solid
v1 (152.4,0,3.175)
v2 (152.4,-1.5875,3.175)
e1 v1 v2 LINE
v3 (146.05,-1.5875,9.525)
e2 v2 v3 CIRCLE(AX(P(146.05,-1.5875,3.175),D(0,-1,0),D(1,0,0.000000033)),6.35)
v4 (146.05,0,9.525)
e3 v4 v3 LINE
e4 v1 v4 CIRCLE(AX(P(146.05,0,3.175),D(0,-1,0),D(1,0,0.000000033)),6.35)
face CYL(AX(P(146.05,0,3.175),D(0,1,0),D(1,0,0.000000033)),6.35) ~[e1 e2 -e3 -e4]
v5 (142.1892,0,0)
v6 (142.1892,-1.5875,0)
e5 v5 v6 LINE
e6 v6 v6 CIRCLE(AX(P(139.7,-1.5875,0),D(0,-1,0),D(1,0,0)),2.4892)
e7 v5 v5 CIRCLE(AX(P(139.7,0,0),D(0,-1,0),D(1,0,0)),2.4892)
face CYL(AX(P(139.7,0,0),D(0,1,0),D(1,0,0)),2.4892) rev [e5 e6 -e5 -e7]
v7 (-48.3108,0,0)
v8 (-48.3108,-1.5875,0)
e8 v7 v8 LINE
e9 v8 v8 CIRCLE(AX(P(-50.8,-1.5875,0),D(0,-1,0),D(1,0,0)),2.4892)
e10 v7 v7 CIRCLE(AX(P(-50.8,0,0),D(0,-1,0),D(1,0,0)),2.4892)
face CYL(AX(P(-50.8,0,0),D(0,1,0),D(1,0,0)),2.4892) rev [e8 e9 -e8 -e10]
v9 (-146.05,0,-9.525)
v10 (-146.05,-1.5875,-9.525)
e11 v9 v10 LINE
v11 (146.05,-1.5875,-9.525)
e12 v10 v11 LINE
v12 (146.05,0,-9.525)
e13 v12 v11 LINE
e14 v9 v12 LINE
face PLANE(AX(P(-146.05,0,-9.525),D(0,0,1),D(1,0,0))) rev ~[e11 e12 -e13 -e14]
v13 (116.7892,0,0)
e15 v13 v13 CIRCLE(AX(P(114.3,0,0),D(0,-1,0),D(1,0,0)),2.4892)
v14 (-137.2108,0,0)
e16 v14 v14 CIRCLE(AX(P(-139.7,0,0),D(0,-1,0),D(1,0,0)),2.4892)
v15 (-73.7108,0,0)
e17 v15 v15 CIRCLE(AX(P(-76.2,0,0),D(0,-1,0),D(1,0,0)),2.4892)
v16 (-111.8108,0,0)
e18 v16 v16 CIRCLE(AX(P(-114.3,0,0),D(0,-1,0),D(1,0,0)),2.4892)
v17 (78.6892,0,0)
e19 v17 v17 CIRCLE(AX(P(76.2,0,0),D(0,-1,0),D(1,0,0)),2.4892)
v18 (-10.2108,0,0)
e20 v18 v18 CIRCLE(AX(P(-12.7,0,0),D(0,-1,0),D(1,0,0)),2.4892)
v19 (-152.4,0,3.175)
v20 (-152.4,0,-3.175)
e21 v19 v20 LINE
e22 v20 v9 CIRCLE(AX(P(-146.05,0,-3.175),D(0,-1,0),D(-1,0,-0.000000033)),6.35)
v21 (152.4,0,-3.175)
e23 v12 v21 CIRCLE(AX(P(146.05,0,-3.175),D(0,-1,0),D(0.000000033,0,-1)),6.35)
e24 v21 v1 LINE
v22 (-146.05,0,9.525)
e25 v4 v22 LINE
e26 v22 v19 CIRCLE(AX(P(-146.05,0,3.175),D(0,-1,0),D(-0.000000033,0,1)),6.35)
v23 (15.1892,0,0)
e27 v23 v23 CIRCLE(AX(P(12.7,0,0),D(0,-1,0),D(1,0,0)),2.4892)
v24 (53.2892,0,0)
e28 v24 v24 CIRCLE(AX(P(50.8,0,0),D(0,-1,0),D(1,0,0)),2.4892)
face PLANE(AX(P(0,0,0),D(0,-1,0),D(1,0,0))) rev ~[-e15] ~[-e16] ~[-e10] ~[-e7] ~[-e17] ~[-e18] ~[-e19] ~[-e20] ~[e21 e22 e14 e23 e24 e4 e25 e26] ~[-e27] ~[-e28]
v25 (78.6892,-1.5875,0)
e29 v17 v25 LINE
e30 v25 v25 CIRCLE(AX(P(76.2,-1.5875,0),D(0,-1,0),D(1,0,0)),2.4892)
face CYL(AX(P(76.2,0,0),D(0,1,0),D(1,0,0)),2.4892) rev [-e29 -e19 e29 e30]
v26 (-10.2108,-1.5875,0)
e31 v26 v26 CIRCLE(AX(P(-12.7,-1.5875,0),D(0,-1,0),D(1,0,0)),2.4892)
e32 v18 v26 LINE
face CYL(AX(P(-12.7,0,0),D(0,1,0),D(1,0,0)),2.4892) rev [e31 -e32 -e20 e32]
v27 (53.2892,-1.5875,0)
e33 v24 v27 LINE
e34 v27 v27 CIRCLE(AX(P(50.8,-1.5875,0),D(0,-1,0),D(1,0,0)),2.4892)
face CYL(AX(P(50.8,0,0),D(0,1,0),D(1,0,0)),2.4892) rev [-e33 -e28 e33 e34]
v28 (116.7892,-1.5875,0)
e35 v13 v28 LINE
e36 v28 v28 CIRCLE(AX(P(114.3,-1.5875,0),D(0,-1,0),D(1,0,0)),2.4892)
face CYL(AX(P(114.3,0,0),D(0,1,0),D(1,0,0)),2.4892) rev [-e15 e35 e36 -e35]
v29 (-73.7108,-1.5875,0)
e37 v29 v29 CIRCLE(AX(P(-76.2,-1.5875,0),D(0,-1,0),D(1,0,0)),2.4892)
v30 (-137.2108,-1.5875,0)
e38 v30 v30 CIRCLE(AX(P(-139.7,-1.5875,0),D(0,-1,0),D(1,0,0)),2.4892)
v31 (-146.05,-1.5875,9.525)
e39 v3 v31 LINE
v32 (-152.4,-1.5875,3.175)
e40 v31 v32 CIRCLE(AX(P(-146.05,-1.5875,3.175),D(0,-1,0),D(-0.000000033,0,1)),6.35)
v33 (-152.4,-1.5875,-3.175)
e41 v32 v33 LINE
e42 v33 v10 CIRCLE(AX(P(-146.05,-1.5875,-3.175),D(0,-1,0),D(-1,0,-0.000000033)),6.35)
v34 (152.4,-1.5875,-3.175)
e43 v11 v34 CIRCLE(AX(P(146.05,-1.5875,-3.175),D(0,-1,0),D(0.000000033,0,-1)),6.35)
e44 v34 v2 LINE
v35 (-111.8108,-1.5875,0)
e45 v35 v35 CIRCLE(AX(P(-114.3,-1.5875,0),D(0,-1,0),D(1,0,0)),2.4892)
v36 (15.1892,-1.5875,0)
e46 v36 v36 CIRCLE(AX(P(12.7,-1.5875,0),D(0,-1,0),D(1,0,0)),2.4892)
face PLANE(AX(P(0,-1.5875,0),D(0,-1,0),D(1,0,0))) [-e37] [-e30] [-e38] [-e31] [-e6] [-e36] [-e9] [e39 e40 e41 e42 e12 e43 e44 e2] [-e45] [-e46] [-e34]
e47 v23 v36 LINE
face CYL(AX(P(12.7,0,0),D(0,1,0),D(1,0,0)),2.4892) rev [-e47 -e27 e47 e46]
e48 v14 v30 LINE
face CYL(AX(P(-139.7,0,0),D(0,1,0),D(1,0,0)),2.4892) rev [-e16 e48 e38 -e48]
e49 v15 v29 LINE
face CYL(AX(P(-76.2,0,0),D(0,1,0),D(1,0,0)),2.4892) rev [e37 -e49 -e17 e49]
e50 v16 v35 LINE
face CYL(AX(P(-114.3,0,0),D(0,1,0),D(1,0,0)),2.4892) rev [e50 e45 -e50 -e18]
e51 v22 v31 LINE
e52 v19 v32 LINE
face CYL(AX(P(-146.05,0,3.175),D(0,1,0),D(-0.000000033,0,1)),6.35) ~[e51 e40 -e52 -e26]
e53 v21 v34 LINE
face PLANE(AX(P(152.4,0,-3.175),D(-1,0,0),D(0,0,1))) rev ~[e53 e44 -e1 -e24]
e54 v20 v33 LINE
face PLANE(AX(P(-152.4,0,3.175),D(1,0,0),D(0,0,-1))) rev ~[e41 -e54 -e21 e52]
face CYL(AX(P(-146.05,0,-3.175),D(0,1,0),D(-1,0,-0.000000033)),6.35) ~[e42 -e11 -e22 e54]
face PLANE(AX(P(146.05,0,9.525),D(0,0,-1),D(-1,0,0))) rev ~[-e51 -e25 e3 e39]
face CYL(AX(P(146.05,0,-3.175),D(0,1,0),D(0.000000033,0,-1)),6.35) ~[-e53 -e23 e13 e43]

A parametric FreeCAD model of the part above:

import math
import FreeCAD as App
import Part
import Sketcher

V = App.Vector
Q = App.Units.Quantity

doc = App.newDocument("Part")
params = doc.addObject("Spreadsheet::Sheet", "Params")
for row, (alias, value) in enumerate([
    ("sketch1_radius", "0.25 in"),
    ("sketch1_diameter", "0.196 in"),
    ("sketch1_width", "11.5 in"),
    ("sketch1_height", "0.25 in"),
    ("pad1_length", "0.0625 in"),
], start=1):
    params.set(f"A{row}", alias)
    params.set(f"B{row}", "=" + value)
    params.setAlias(f"B{row}", alias)

body = doc.addObject("PartDesign::Body", "Body")

sketch1 = body.newObject("Sketcher::SketchObject", "Sketch")
sketch1.AttachmentSupport = (doc.getObject("XZ_Plane"), [""])
sketch1.MapMode = "FlatFace"
sketch1.addGeometry([
    Part.LineSegment(V(146.1, 9.5, 0), V(-146.1, 9.5, 0)),
    Part.ArcOfCircle(Part.Circle(V(-146, 3.2, 0), V(0, 0, 1), 6.4), math.radians(90), math.radians(180)),
    Part.LineSegment(V(-152.4, 3.2, 0), V(-152.4, -3.2, 0)),
    Part.ArcOfCircle(Part.Circle(V(-146, -3.2, 0), V(0, 0, 1), 6.4), math.radians(-180), math.radians(-90)),
    Part.LineSegment(V(-146.1, -9.5, 0), V(146.1, -9.5, 0)),
    Part.ArcOfCircle(Part.Circle(V(146, -3.2, 0), V(0, 0, 1), 6.4), math.radians(-90), math.radians(0)),
    Part.LineSegment(V(152.4, -3.2, 0), V(152.4, 3.2, 0)),
    Part.ArcOfCircle(Part.Circle(V(146, 3.2, 0), V(0, 0, 1), 6.4), math.radians(0), math.radians(90)),
    Part.Circle(V(-139.7, 0, 0), V(0, 0, 1), 2.5),
    Part.Circle(V(-114.3, 0, 0), V(0, 0, 1), 2.5),
    Part.Circle(V(-76.2, 0, 0), V(0, 0, 1), 2.5),
    Part.Circle(V(-50.8, 0, 0), V(0, 0, 1), 2.5),
    Part.Circle(V(-12.7, 0, 0), V(0, 0, 1), 2.5),
    Part.Circle(V(12.7, 0, 0), V(0, 0, 1), 2.5),
    Part.Circle(V(50.8, 0, 0), V(0, 0, 1), 2.5),
    Part.Circle(V(76.2, 0, 0), V(0, 0, 1), 2.5),
    Part.Circle(V(114.3, 0, 0), V(0, 0, 1), 2.5),
    Part.Circle(V(139.7, 0, 0), V(0, 0, 1), 2.5),
], False)
sketch1.addConstraint([
    Sketcher.Constraint("Tangent", 0, 2, 1, 1),
    Sketcher.Constraint("Tangent", 1, 2, 2, 1),
    Sketcher.Constraint("Tangent", 2, 2, 3, 1),
    Sketcher.Constraint("Tangent", 3, 2, 4, 1),
    Sketcher.Constraint("Tangent", 4, 2, 5, 1),
    Sketcher.Constraint("Tangent", 5, 2, 6, 1),
    Sketcher.Constraint("Tangent", 6, 2, 7, 1),
    Sketcher.Constraint("Tangent", 7, 2, 0, 1),
    Sketcher.Constraint("Horizontal", 0),
    Sketcher.Constraint("Vertical", 2),
    Sketcher.Constraint("Horizontal", 4),
    Sketcher.Constraint("Vertical", 6),
    Sketcher.Constraint("Equal", 1, 3),
    Sketcher.Constraint("Equal", 3, 5),
    Sketcher.Constraint("Equal", 5, 7),
    Sketcher.Constraint("Equal", 8, 9),
    Sketcher.Constraint("Equal", 9, 10),
    Sketcher.Constraint("Equal", 10, 11),
    Sketcher.Constraint("Equal", 11, 12),
    Sketcher.Constraint("Equal", 12, 13),
    Sketcher.Constraint("Equal", 13, 14),
    Sketcher.Constraint("Equal", 14, 15),
    Sketcher.Constraint("Equal", 15, 16),
    Sketcher.Constraint("Equal", 16, 17),
    Sketcher.Constraint("Symmetric", 1, 3, 5, 3, -1, 1),
    Sketcher.Constraint("Symmetric", 12, 3, 13, 3, -1, 1),
    Sketcher.Constraint("Symmetric", 11, 3, 14, 3, -1, 1),
    Sketcher.Constraint("Symmetric", 10, 3, 15, 3, -1, 1),
    Sketcher.Constraint("Symmetric", 9, 3, 16, 3, -1, 1),
    Sketcher.Constraint("Symmetric", 8, 3, 17, 3, -1, 1),
    Sketcher.Constraint("PointOnObject", 8, 3, -1),
    Sketcher.Constraint("PointOnObject", 9, 3, -1),
    Sketcher.Constraint("PointOnObject", 10, 3, -1),
    Sketcher.Constraint("PointOnObject", 11, 3, -1),
    Sketcher.Constraint("PointOnObject", 12, 3, -1),
    Sketcher.Constraint("Radius", 1, Q("0.25 in")),
    Sketcher.Constraint("Diameter", 8, Q("0.196 in")),
    Sketcher.Constraint("DistanceX", 0, 2, 0, 1, Q("11.5 in")),
    Sketcher.Constraint("DistanceX", 10, 3, -1, 1, Q("3 in")),
    Sketcher.Constraint("DistanceX", 11, 3, -1, 1, Q("2 in")),
    Sketcher.Constraint("DistanceX", 8, 3, 9, 3, Q("1 in")),
    Sketcher.Constraint("DistanceX", 9, 3, 12, 3, Q("4 in")),
    Sketcher.Constraint("DistanceX", 12, 3, 13, 3, Q("1 in")),
    Sketcher.Constraint("DistanceY", 2, 2, 2, 1, Q("0.25 in")),
])
sketch1.setExpression("Constraints[35]", "Params.sketch1_radius")
sketch1.setExpression("Constraints[36]", "Params.sketch1_diameter")
sketch1.setExpression("Constraints[37]", "Params.sketch1_width")
sketch1.setExpression("Constraints[43]", "Params.sketch1_height")
pad1 = body.newObject("PartDesign::Pad", "Pad")
pad1.Profile = sketch1
pad1.setExpression("Length", "Params.pad1_length")

doc.recompute()
